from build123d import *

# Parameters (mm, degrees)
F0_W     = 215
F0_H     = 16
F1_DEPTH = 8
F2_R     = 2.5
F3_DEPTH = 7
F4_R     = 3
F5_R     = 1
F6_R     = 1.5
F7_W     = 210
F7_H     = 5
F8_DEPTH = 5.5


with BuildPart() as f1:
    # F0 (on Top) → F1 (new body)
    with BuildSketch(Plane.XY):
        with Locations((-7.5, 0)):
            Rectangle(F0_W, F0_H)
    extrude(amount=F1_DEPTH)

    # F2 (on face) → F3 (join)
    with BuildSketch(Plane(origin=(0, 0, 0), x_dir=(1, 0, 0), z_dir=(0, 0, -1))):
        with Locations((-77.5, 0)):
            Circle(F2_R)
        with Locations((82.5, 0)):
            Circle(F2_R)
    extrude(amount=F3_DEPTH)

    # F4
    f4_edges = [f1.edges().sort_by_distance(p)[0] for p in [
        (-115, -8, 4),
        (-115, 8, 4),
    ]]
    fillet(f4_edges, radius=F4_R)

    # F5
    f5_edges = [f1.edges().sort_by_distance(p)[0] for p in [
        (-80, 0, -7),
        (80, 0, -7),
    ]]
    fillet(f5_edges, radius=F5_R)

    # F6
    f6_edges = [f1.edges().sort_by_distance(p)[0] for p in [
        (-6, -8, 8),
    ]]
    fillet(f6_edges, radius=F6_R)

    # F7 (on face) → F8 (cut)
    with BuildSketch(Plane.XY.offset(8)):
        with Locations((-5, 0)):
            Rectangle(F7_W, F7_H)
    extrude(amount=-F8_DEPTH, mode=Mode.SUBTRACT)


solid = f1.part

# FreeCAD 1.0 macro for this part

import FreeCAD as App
import Part
import Sketcher
Q = App.Units.Quantity


def edges_at(feature, points):
    """Names of the edges that pass closest to the given points."""
    edges = feature.Shape.Edges
    near = lambda p: min(range(len(edges)), key=lambda i: edges[i].distToShape(Part.Vertex(*p))[0])
    return sorted({f"Edge{near(p) + 1}" for p in points})


def add_polygon(sketch, points):
    """Adds a closed chain of lines whose ends are joined by coincident constraints."""
    first, n = sketch.GeometryCount, len(points)
    for a, b in zip(points, points[1:] + points[:1]):
        sketch.addGeometry(Part.LineSegment(App.Vector(*a, 0), App.Vector(*b, 0)), False)
    for i in range(n):
        sketch.addConstraint(Sketcher.Constraint("Coincident", first + i, 2, first + (i + 1) % n, 1))

doc = App.newDocument("Part")
body = doc.addObject("PartDesign::Body", "Body")

# Sketch on XY plane
sketch1 = body.newObject("Sketcher::SketchObject", "Sketch")
sketch1.AttachmentSupport = (doc.getObject("XY_Plane"), [""])
sketch1.MapMode = "FlatFace"
add_polygon(sketch1, [(-115, 8), (-115, -8), (100, -8), (100, 8)])  # lines 0-3
sketch1.addConstraint(Sketcher.Constraint("Vertical", 0))
sketch1.addConstraint(Sketcher.Constraint("Horizontal", 1))
sketch1.addConstraint(Sketcher.Constraint("Vertical", 2))
sketch1.addConstraint(Sketcher.Constraint("Horizontal", 3))
sketch1.addConstraint(Sketcher.Constraint("DistanceX", 1, 1, 1, 2, Q("215 mm")))
sketch1.addConstraint(Sketcher.Constraint("DistanceY", 0, 2, 0, 1, Q("16 mm")))
sketch1.addConstraint(Sketcher.Constraint("DistanceX", 0, 2, -1, 1, Q("115 mm")))
sketch1.addConstraint(Sketcher.Constraint("DistanceY", 0, 2, -1, 1, Q("8 mm")))
pad1 = body.newObject("PartDesign::Pad", "Pad")
pad1.Profile = sketch1
pad1.Length = 8

# Sketch on XY plane
sketch2 = body.newObject("Sketcher::SketchObject", "Sketch001")
sketch2.AttachmentSupport = (doc.getObject("XY_Plane"), [""])
sketch2.MapMode = "FlatFace"
sketch2.addGeometry(Part.Circle(App.Vector(-77.5, 0, 0), App.Vector(0, 0, 1), 2.5), False)
sketch2.addGeometry(Part.Circle(App.Vector(82.5, 0, 0), App.Vector(0, 0, 1), 2.5), False)
sketch2.addConstraint(Sketcher.Constraint("Equal", 0, 1))
sketch2.addConstraint(Sketcher.Constraint("PointOnObject", 0, 3, -1))
sketch2.addConstraint(Sketcher.Constraint("PointOnObject", 1, 3, -1))
sketch2.addConstraint(Sketcher.Constraint("Diameter", 0, Q("5 mm")))
sketch2.addConstraint(Sketcher.Constraint("DistanceX", 0, 3, 1, 3, Q("160 mm")))
sketch2.addConstraint(Sketcher.Constraint("DistanceX", 0, 3, -1, 1, Q("77.5 mm")))
pad2 = body.newObject("PartDesign::Pad", "Pad001")
pad2.Profile = sketch2
pad2.Length = 7
pad2.Reversed = True
doc.recompute()

fillet = body.newObject("PartDesign::Fillet", "Fillet")
fillet.Base = (pad2, edges_at(pad2, [(-115, -8, 4), (-115, 8, 4)]))
fillet.Radius = 3
doc.recompute()

fillet2 = body.newObject("PartDesign::Fillet", "Fillet001")
fillet2.Base = (fillet, edges_at(fillet, [(-80, 0, -7), (80, 0, -7)]))
fillet2.Radius = 1
doc.recompute()

fillet3 = body.newObject("PartDesign::Fillet", "Fillet002")
fillet3.Base = (fillet2, edges_at(fillet2, [(-6, -8, 8)]))
fillet3.Radius = 1.5

# Sketch on XY plane
sketch3 = body.newObject("Sketcher::SketchObject", "Sketch002")
sketch3.AttachmentSupport = (doc.getObject("XY_Plane"), [""])
sketch3.MapMode = "FlatFace"
sketch3.AttachmentOffset = App.Placement(App.Vector(0, 0, 8), App.Rotation())
add_polygon(sketch3, [(-110, 2), (-110, -2), (100, -2), (100, 2)])  # lines 0-3
sketch3.addConstraint(Sketcher.Constraint("Vertical", 0))
sketch3.addConstraint(Sketcher.Constraint("Horizontal", 1))
sketch3.addConstraint(Sketcher.Constraint("Vertical", 2))
sketch3.addConstraint(Sketcher.Constraint("Horizontal", 3))
sketch3.addConstraint(Sketcher.Constraint("DistanceX", 1, 1, 1, 2, Q("210 mm")))
sketch3.addConstraint(Sketcher.Constraint("DistanceY", 0, 2, 0, 1, Q("5 mm")))
sketch3.addConstraint(Sketcher.Constraint("DistanceX", 0, 2, -1, 1, Q("110 mm")))
sketch3.addConstraint(Sketcher.Constraint("DistanceY", 0, 2, -1, 1, Q("2.5 mm")))
pocket1 = body.newObject("PartDesign::Pocket", "Pocket")
pocket1.Profile = sketch3
pocket1.Length = 5.5

doc.recompute()
